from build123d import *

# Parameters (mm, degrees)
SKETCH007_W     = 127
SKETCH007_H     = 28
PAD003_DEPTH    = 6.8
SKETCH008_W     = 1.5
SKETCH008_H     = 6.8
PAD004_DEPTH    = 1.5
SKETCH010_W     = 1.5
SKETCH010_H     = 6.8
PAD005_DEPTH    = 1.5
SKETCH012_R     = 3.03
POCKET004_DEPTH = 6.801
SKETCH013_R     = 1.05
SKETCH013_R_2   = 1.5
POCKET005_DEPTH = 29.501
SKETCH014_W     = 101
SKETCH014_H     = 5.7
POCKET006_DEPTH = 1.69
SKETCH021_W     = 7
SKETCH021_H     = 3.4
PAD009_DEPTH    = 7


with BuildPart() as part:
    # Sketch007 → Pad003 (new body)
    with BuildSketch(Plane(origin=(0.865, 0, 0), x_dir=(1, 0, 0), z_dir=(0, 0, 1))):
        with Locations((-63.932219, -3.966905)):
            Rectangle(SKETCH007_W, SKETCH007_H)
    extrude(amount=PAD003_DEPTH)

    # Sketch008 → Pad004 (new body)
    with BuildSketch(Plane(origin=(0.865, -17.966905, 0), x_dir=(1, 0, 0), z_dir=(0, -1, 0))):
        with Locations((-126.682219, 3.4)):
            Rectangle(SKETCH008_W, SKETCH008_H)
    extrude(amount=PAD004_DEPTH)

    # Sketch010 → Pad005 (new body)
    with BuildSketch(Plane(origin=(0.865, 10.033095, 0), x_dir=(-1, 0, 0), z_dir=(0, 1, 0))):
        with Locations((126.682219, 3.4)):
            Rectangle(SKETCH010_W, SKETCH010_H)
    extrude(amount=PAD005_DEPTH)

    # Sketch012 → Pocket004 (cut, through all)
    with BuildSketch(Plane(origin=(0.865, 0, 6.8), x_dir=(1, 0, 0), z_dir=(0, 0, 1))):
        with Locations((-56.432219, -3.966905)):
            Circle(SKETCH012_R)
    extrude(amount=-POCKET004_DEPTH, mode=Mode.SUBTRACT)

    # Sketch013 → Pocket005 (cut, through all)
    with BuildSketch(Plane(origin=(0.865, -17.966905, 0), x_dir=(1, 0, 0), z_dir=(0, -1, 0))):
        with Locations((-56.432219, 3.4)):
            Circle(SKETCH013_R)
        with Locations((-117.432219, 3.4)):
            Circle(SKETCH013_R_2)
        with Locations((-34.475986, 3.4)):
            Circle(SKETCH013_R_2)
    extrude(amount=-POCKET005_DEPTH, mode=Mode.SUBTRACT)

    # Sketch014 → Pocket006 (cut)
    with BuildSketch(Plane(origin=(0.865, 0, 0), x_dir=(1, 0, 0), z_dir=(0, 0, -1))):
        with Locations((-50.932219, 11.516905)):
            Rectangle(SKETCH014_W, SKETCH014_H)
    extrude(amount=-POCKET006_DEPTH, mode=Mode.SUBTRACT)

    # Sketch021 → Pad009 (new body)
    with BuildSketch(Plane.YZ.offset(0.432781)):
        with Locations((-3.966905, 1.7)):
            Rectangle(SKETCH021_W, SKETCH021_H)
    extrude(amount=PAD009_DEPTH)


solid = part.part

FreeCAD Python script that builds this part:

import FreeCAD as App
import Part
import Sketcher
from FreeCAD import Vector
Q = App.Units.Quantity


def add_polygon(sketch, points):
    """Adds a closed chain of lines whose ends are joined by coincident constraints."""
    first, n = sketch.GeometryCount, len(points)
    for a, b in zip(points, points[1:] + points[:1]):
        sketch.addGeometry(Part.LineSegment(App.Vector(*a, 0), App.Vector(*b, 0)), False)
    for i in range(n):
        sketch.addConstraint(Sketcher.Constraint("Coincident", first + i, 2, first + (i + 1) % n, 1))

doc = App.newDocument("Part")
body = doc.addObject("PartDesign::Body", "Body")

# Sketch on XY plane
sketch1 = body.newObject("Sketcher::SketchObject", "Sketch")
sketch1.AttachmentSupport = (doc.getObject("XY_Plane"), [""])
sketch1.MapMode = "FlatFace"
add_polygon(sketch1, [(-127, 10), (-127, -18), (0, -18), (0, 10)])  # lines 0-3
sketch1.addConstraint(Sketcher.Constraint("Vertical", 0))
sketch1.addConstraint(Sketcher.Constraint("Horizontal", 1))
sketch1.addConstraint(Sketcher.Constraint("Vertical", 2))
sketch1.addConstraint(Sketcher.Constraint("Horizontal", 3))
sketch1.addConstraint(Sketcher.Constraint("DistanceX", 1, 1, 1, 2, Q("127 mm")))
sketch1.addConstraint(Sketcher.Constraint("DistanceY", 0, 2, 0, 1, Q("28 mm")))
sketch1.addConstraint(Sketcher.Constraint("DistanceX", 0, 2, -1, 1, Q("126.567219 mm")))
sketch1.addConstraint(Sketcher.Constraint("DistanceY", 0, 2, -1, 1, Q("17.966905 mm")))
pad1 = body.newObject("PartDesign::Pad", "Pad")
pad1.Profile = sketch1
pad1.Length = 6.8

# Sketch on XZ plane
sketch2 = body.newObject("Sketcher::SketchObject", "Sketch001")
sketch2.AttachmentSupport = (doc.getObject("XZ_Plane"), [""])
sketch2.MapMode = "FlatFace"
sketch2.AttachmentOffset = App.Placement(Vector(0, 0, 17.966905), App.Rotation())
add_polygon(sketch2, [(-126.6, 6.8), (-126.6, 0), (-125.1, 0), (-125.1, 6.8)])  # lines 0-3
sketch2.addConstraint(Sketcher.Constraint("Vertical", 0))
sketch2.addConstraint(Sketcher.Constraint("Horizontal", 1))
sketch2.addConstraint(Sketcher.Constraint("Vertical", 2))
sketch2.addConstraint(Sketcher.Constraint("Horizontal", 3))
sketch2.addConstraint(Sketcher.Constraint("PointOnObject", 0, 2, -1))
sketch2.addConstraint(Sketcher.Constraint("DistanceX", 1, 1, 1, 2, Q("1.5 mm")))
sketch2.addConstraint(Sketcher.Constraint("DistanceY", 0, 2, 0, 1, Q("6.8 mm")))
sketch2.addConstraint(Sketcher.Constraint("DistanceX", 0, 2, -1, 1, Q("126.567219 mm")))
pad2 = body.newObject("PartDesign::Pad", "Pad001")
pad2.Profile = sketch2
pad2.Length = 1.5

# Sketch on XZ plane
sketch3 = body.newObject("Sketcher::SketchObject", "Sketch002")
sketch3.AttachmentSupport = (doc.getObject("XZ_Plane"), [""])
sketch3.MapMode = "FlatFace"
sketch3.AttachmentOffset = App.Placement(Vector(0, 0, -10.033095), App.Rotation())
add_polygon(sketch3, [(-125.1, 6.8), (-125.1, 0), (-126.6, 0), (-126.6, 6.8)])  # lines 0-3
sketch3.addConstraint(Sketcher.Constraint("Vertical", 0))
sketch3.addConstraint(Sketcher.Constraint("Horizontal", 1))
sketch3.addConstraint(Sketcher.Constraint("Vertical", 2))
sketch3.addConstraint(Sketcher.Constraint("Horizontal", 3))
sketch3.addConstraint(Sketcher.Constraint("PointOnObject", 0, 2, -1))
sketch3.addConstraint(Sketcher.Constraint("DistanceX", 1, 2, 1, 1, Q("1.5 mm")))
sketch3.addConstraint(Sketcher.Constraint("DistanceY", 0, 2, 0, 1, Q("6.8 mm")))
sketch3.addConstraint(Sketcher.Constraint("DistanceX", 0, 2, -1, 1, Q("125.067219 mm")))
pad3 = body.newObject("PartDesign::Pad", "Pad002")
pad3.Profile = sketch3
pad3.Length = 1.5
pad3.Reversed = True

# Sketch on XY plane
sketch4 = body.newObject("Sketcher::SketchObject", "Sketch003")
sketch4.AttachmentSupport = (doc.getObject("XY_Plane"), [""])
sketch4.MapMode = "FlatFace"
sketch4.AttachmentOffset = App.Placement(Vector(0, 0, 6.8), App.Rotation())
sketch4.addGeometry(Part.Circle(Vector(-55.6, -4, 0), Vector(0, 0, 1), 3), False)
sketch4.addConstraint(Sketcher.Constraint("Diameter", 0, Q("6.06 mm")))
sketch4.addConstraint(Sketcher.Constraint("DistanceX", 0, 3, -1, 1, Q("55.567219 mm")))
sketch4.addConstraint(Sketcher.Constraint("DistanceY", 0, 3, -1, 1, Q("3.966905 mm")))
pocket1 = body.newObject("PartDesign::Pocket", "Pocket")
pocket1.Profile = sketch4
pocket1.Type = "ThroughAll"

# Sketch on XZ plane
sketch5 = body.newObject("Sketcher::SketchObject", "Sketch004")
sketch5.AttachmentSupport = (doc.getObject("XZ_Plane"), [""])
sketch5.MapMode = "FlatFace"
sketch5.AttachmentOffset = App.Placement(Vector(0, 0, 17.966905), App.Rotation())
sketch5.addGeometry(Part.Circle(Vector(-55.6, 3.4, 0), Vector(0, 0, 1), 1.1), False)
sketch5.addGeometry(Part.Circle(Vector(-116.6, 3.4, 0), Vector(0, 0, 1), 1.5), False)
sketch5.addGeometry(Part.Circle(Vector(-33.6, 3.4, 0), Vector(0, 0, 1), 1.5), False)
sketch5.addConstraint(Sketcher.Constraint("Equal", 1, 2))
sketch5.addConstraint(Sketcher.Constraint("Horizontal", 0, 3, 1, 3))
sketch5.addConstraint(Sketcher.Constraint("Horizontal", 1, 3, 2, 3))
sketch5.addConstraint(Sketcher.Constraint("Diameter", 1, Q("3 mm")))
sketch5.addConstraint(Sketcher.Constraint("Diameter", 0, Q("2.1 mm")))
sketch5.addConstraint(Sketcher.Constraint("DistanceX", 1, 3, 0, 3, Q("61 mm")))
sketch5.addConstraint(Sketcher.Constraint("DistanceY", -1, 1, 0, 3, Q("3.4 mm")))
sketch5.addConstraint(Sketcher.Constraint("DistanceX", 0, 3, -1, 1, Q("55.567219 mm")))
sketch5.addConstraint(Sketcher.Constraint("DistanceX", 2, 3, -1, 1, Q("33.610986 mm")))
pocket2 = body.newObject("PartDesign::Pocket", "Pocket001")
pocket2.Profile = sketch5
pocket2.Type = "ThroughAll"

# Sketch on XY plane
sketch6 = body.newObject("Sketcher::SketchObject", "Sketch005")
sketch6.AttachmentSupport = (doc.getObject("XY_Plane"), [""])
sketch6.MapMode = "FlatFace"
add_polygon(sketch6, [(-101, -14), (-101, -9), (0, -9), (0, -14)])  # lines 0-3
sketch6.addConstraint(Sketcher.Constraint("Vertical", 0))
sketch6.addConstraint(Sketcher.Constraint("Horizontal", 1))
sketch6.addConstraint(Sketcher.Constraint("Vertical", 2))
sketch6.addConstraint(Sketcher.Constraint("Horizontal", 3))
sketch6.addConstraint(Sketcher.Constraint("DistanceX", 1, 1, 1, 2, Q("101 mm")))
sketch6.addConstraint(Sketcher.Constraint("DistanceY", 0, 1, 0, 2, Q("5.7 mm")))
sketch6.addConstraint(Sketcher.Constraint("DistanceX", 0, 2, -1, 1, Q("100.567219 mm")))
sketch6.addConstraint(Sketcher.Constraint("DistanceY", 0, 2, -1, 1, Q("8.666905 mm")))
pocket3 = body.newObject("PartDesign::Pocket", "Pocket002")
pocket3.Profile = sketch6
pocket3.Length = 1.69
pocket3.Reversed = True

# Sketch on YZ plane
sketch7 = body.newObject("Sketcher::SketchObject", "Sketch006")
sketch7.AttachmentSupport = (doc.getObject("YZ_Plane"), [""])
sketch7.MapMode = "FlatFace"
sketch7.AttachmentOffset = App.Placement(Vector(0, 0, 0.432781), App.Rotation())
add_polygon(sketch7, [(-7.5, 3.4), (-7.5, 0), (-0.5, 0), (-0.5, 3.4)])  # lines 0-3
sketch7.addConstraint(Sketcher.Constraint("Vertical", 0))
sketch7.addConstraint(Sketcher.Constraint("Horizontal", 1))
sketch7.addConstraint(Sketcher.Constraint("Vertical", 2))
sketch7.addConstraint(Sketcher.Constraint("Horizontal", 3))
sketch7.addConstraint(Sketcher.Constraint("PointOnObject", 0, 2, -1))
sketch7.addConstraint(Sketcher.Constraint("DistanceX", 1, 1, 1, 2, Q("7 mm")))
sketch7.addConstraint(Sketcher.Constraint("DistanceY", 0, 2, 0, 1, Q("3.4 mm")))
sketch7.addConstraint(Sketcher.Constraint("DistanceX", 0, 2, -1, 1, Q("7.466905 mm")))
pad4 = body.newObject("PartDesign::Pad", "Pad003")
pad4.Profile = sketch7
pad4.Length = 7

doc.recompute()
